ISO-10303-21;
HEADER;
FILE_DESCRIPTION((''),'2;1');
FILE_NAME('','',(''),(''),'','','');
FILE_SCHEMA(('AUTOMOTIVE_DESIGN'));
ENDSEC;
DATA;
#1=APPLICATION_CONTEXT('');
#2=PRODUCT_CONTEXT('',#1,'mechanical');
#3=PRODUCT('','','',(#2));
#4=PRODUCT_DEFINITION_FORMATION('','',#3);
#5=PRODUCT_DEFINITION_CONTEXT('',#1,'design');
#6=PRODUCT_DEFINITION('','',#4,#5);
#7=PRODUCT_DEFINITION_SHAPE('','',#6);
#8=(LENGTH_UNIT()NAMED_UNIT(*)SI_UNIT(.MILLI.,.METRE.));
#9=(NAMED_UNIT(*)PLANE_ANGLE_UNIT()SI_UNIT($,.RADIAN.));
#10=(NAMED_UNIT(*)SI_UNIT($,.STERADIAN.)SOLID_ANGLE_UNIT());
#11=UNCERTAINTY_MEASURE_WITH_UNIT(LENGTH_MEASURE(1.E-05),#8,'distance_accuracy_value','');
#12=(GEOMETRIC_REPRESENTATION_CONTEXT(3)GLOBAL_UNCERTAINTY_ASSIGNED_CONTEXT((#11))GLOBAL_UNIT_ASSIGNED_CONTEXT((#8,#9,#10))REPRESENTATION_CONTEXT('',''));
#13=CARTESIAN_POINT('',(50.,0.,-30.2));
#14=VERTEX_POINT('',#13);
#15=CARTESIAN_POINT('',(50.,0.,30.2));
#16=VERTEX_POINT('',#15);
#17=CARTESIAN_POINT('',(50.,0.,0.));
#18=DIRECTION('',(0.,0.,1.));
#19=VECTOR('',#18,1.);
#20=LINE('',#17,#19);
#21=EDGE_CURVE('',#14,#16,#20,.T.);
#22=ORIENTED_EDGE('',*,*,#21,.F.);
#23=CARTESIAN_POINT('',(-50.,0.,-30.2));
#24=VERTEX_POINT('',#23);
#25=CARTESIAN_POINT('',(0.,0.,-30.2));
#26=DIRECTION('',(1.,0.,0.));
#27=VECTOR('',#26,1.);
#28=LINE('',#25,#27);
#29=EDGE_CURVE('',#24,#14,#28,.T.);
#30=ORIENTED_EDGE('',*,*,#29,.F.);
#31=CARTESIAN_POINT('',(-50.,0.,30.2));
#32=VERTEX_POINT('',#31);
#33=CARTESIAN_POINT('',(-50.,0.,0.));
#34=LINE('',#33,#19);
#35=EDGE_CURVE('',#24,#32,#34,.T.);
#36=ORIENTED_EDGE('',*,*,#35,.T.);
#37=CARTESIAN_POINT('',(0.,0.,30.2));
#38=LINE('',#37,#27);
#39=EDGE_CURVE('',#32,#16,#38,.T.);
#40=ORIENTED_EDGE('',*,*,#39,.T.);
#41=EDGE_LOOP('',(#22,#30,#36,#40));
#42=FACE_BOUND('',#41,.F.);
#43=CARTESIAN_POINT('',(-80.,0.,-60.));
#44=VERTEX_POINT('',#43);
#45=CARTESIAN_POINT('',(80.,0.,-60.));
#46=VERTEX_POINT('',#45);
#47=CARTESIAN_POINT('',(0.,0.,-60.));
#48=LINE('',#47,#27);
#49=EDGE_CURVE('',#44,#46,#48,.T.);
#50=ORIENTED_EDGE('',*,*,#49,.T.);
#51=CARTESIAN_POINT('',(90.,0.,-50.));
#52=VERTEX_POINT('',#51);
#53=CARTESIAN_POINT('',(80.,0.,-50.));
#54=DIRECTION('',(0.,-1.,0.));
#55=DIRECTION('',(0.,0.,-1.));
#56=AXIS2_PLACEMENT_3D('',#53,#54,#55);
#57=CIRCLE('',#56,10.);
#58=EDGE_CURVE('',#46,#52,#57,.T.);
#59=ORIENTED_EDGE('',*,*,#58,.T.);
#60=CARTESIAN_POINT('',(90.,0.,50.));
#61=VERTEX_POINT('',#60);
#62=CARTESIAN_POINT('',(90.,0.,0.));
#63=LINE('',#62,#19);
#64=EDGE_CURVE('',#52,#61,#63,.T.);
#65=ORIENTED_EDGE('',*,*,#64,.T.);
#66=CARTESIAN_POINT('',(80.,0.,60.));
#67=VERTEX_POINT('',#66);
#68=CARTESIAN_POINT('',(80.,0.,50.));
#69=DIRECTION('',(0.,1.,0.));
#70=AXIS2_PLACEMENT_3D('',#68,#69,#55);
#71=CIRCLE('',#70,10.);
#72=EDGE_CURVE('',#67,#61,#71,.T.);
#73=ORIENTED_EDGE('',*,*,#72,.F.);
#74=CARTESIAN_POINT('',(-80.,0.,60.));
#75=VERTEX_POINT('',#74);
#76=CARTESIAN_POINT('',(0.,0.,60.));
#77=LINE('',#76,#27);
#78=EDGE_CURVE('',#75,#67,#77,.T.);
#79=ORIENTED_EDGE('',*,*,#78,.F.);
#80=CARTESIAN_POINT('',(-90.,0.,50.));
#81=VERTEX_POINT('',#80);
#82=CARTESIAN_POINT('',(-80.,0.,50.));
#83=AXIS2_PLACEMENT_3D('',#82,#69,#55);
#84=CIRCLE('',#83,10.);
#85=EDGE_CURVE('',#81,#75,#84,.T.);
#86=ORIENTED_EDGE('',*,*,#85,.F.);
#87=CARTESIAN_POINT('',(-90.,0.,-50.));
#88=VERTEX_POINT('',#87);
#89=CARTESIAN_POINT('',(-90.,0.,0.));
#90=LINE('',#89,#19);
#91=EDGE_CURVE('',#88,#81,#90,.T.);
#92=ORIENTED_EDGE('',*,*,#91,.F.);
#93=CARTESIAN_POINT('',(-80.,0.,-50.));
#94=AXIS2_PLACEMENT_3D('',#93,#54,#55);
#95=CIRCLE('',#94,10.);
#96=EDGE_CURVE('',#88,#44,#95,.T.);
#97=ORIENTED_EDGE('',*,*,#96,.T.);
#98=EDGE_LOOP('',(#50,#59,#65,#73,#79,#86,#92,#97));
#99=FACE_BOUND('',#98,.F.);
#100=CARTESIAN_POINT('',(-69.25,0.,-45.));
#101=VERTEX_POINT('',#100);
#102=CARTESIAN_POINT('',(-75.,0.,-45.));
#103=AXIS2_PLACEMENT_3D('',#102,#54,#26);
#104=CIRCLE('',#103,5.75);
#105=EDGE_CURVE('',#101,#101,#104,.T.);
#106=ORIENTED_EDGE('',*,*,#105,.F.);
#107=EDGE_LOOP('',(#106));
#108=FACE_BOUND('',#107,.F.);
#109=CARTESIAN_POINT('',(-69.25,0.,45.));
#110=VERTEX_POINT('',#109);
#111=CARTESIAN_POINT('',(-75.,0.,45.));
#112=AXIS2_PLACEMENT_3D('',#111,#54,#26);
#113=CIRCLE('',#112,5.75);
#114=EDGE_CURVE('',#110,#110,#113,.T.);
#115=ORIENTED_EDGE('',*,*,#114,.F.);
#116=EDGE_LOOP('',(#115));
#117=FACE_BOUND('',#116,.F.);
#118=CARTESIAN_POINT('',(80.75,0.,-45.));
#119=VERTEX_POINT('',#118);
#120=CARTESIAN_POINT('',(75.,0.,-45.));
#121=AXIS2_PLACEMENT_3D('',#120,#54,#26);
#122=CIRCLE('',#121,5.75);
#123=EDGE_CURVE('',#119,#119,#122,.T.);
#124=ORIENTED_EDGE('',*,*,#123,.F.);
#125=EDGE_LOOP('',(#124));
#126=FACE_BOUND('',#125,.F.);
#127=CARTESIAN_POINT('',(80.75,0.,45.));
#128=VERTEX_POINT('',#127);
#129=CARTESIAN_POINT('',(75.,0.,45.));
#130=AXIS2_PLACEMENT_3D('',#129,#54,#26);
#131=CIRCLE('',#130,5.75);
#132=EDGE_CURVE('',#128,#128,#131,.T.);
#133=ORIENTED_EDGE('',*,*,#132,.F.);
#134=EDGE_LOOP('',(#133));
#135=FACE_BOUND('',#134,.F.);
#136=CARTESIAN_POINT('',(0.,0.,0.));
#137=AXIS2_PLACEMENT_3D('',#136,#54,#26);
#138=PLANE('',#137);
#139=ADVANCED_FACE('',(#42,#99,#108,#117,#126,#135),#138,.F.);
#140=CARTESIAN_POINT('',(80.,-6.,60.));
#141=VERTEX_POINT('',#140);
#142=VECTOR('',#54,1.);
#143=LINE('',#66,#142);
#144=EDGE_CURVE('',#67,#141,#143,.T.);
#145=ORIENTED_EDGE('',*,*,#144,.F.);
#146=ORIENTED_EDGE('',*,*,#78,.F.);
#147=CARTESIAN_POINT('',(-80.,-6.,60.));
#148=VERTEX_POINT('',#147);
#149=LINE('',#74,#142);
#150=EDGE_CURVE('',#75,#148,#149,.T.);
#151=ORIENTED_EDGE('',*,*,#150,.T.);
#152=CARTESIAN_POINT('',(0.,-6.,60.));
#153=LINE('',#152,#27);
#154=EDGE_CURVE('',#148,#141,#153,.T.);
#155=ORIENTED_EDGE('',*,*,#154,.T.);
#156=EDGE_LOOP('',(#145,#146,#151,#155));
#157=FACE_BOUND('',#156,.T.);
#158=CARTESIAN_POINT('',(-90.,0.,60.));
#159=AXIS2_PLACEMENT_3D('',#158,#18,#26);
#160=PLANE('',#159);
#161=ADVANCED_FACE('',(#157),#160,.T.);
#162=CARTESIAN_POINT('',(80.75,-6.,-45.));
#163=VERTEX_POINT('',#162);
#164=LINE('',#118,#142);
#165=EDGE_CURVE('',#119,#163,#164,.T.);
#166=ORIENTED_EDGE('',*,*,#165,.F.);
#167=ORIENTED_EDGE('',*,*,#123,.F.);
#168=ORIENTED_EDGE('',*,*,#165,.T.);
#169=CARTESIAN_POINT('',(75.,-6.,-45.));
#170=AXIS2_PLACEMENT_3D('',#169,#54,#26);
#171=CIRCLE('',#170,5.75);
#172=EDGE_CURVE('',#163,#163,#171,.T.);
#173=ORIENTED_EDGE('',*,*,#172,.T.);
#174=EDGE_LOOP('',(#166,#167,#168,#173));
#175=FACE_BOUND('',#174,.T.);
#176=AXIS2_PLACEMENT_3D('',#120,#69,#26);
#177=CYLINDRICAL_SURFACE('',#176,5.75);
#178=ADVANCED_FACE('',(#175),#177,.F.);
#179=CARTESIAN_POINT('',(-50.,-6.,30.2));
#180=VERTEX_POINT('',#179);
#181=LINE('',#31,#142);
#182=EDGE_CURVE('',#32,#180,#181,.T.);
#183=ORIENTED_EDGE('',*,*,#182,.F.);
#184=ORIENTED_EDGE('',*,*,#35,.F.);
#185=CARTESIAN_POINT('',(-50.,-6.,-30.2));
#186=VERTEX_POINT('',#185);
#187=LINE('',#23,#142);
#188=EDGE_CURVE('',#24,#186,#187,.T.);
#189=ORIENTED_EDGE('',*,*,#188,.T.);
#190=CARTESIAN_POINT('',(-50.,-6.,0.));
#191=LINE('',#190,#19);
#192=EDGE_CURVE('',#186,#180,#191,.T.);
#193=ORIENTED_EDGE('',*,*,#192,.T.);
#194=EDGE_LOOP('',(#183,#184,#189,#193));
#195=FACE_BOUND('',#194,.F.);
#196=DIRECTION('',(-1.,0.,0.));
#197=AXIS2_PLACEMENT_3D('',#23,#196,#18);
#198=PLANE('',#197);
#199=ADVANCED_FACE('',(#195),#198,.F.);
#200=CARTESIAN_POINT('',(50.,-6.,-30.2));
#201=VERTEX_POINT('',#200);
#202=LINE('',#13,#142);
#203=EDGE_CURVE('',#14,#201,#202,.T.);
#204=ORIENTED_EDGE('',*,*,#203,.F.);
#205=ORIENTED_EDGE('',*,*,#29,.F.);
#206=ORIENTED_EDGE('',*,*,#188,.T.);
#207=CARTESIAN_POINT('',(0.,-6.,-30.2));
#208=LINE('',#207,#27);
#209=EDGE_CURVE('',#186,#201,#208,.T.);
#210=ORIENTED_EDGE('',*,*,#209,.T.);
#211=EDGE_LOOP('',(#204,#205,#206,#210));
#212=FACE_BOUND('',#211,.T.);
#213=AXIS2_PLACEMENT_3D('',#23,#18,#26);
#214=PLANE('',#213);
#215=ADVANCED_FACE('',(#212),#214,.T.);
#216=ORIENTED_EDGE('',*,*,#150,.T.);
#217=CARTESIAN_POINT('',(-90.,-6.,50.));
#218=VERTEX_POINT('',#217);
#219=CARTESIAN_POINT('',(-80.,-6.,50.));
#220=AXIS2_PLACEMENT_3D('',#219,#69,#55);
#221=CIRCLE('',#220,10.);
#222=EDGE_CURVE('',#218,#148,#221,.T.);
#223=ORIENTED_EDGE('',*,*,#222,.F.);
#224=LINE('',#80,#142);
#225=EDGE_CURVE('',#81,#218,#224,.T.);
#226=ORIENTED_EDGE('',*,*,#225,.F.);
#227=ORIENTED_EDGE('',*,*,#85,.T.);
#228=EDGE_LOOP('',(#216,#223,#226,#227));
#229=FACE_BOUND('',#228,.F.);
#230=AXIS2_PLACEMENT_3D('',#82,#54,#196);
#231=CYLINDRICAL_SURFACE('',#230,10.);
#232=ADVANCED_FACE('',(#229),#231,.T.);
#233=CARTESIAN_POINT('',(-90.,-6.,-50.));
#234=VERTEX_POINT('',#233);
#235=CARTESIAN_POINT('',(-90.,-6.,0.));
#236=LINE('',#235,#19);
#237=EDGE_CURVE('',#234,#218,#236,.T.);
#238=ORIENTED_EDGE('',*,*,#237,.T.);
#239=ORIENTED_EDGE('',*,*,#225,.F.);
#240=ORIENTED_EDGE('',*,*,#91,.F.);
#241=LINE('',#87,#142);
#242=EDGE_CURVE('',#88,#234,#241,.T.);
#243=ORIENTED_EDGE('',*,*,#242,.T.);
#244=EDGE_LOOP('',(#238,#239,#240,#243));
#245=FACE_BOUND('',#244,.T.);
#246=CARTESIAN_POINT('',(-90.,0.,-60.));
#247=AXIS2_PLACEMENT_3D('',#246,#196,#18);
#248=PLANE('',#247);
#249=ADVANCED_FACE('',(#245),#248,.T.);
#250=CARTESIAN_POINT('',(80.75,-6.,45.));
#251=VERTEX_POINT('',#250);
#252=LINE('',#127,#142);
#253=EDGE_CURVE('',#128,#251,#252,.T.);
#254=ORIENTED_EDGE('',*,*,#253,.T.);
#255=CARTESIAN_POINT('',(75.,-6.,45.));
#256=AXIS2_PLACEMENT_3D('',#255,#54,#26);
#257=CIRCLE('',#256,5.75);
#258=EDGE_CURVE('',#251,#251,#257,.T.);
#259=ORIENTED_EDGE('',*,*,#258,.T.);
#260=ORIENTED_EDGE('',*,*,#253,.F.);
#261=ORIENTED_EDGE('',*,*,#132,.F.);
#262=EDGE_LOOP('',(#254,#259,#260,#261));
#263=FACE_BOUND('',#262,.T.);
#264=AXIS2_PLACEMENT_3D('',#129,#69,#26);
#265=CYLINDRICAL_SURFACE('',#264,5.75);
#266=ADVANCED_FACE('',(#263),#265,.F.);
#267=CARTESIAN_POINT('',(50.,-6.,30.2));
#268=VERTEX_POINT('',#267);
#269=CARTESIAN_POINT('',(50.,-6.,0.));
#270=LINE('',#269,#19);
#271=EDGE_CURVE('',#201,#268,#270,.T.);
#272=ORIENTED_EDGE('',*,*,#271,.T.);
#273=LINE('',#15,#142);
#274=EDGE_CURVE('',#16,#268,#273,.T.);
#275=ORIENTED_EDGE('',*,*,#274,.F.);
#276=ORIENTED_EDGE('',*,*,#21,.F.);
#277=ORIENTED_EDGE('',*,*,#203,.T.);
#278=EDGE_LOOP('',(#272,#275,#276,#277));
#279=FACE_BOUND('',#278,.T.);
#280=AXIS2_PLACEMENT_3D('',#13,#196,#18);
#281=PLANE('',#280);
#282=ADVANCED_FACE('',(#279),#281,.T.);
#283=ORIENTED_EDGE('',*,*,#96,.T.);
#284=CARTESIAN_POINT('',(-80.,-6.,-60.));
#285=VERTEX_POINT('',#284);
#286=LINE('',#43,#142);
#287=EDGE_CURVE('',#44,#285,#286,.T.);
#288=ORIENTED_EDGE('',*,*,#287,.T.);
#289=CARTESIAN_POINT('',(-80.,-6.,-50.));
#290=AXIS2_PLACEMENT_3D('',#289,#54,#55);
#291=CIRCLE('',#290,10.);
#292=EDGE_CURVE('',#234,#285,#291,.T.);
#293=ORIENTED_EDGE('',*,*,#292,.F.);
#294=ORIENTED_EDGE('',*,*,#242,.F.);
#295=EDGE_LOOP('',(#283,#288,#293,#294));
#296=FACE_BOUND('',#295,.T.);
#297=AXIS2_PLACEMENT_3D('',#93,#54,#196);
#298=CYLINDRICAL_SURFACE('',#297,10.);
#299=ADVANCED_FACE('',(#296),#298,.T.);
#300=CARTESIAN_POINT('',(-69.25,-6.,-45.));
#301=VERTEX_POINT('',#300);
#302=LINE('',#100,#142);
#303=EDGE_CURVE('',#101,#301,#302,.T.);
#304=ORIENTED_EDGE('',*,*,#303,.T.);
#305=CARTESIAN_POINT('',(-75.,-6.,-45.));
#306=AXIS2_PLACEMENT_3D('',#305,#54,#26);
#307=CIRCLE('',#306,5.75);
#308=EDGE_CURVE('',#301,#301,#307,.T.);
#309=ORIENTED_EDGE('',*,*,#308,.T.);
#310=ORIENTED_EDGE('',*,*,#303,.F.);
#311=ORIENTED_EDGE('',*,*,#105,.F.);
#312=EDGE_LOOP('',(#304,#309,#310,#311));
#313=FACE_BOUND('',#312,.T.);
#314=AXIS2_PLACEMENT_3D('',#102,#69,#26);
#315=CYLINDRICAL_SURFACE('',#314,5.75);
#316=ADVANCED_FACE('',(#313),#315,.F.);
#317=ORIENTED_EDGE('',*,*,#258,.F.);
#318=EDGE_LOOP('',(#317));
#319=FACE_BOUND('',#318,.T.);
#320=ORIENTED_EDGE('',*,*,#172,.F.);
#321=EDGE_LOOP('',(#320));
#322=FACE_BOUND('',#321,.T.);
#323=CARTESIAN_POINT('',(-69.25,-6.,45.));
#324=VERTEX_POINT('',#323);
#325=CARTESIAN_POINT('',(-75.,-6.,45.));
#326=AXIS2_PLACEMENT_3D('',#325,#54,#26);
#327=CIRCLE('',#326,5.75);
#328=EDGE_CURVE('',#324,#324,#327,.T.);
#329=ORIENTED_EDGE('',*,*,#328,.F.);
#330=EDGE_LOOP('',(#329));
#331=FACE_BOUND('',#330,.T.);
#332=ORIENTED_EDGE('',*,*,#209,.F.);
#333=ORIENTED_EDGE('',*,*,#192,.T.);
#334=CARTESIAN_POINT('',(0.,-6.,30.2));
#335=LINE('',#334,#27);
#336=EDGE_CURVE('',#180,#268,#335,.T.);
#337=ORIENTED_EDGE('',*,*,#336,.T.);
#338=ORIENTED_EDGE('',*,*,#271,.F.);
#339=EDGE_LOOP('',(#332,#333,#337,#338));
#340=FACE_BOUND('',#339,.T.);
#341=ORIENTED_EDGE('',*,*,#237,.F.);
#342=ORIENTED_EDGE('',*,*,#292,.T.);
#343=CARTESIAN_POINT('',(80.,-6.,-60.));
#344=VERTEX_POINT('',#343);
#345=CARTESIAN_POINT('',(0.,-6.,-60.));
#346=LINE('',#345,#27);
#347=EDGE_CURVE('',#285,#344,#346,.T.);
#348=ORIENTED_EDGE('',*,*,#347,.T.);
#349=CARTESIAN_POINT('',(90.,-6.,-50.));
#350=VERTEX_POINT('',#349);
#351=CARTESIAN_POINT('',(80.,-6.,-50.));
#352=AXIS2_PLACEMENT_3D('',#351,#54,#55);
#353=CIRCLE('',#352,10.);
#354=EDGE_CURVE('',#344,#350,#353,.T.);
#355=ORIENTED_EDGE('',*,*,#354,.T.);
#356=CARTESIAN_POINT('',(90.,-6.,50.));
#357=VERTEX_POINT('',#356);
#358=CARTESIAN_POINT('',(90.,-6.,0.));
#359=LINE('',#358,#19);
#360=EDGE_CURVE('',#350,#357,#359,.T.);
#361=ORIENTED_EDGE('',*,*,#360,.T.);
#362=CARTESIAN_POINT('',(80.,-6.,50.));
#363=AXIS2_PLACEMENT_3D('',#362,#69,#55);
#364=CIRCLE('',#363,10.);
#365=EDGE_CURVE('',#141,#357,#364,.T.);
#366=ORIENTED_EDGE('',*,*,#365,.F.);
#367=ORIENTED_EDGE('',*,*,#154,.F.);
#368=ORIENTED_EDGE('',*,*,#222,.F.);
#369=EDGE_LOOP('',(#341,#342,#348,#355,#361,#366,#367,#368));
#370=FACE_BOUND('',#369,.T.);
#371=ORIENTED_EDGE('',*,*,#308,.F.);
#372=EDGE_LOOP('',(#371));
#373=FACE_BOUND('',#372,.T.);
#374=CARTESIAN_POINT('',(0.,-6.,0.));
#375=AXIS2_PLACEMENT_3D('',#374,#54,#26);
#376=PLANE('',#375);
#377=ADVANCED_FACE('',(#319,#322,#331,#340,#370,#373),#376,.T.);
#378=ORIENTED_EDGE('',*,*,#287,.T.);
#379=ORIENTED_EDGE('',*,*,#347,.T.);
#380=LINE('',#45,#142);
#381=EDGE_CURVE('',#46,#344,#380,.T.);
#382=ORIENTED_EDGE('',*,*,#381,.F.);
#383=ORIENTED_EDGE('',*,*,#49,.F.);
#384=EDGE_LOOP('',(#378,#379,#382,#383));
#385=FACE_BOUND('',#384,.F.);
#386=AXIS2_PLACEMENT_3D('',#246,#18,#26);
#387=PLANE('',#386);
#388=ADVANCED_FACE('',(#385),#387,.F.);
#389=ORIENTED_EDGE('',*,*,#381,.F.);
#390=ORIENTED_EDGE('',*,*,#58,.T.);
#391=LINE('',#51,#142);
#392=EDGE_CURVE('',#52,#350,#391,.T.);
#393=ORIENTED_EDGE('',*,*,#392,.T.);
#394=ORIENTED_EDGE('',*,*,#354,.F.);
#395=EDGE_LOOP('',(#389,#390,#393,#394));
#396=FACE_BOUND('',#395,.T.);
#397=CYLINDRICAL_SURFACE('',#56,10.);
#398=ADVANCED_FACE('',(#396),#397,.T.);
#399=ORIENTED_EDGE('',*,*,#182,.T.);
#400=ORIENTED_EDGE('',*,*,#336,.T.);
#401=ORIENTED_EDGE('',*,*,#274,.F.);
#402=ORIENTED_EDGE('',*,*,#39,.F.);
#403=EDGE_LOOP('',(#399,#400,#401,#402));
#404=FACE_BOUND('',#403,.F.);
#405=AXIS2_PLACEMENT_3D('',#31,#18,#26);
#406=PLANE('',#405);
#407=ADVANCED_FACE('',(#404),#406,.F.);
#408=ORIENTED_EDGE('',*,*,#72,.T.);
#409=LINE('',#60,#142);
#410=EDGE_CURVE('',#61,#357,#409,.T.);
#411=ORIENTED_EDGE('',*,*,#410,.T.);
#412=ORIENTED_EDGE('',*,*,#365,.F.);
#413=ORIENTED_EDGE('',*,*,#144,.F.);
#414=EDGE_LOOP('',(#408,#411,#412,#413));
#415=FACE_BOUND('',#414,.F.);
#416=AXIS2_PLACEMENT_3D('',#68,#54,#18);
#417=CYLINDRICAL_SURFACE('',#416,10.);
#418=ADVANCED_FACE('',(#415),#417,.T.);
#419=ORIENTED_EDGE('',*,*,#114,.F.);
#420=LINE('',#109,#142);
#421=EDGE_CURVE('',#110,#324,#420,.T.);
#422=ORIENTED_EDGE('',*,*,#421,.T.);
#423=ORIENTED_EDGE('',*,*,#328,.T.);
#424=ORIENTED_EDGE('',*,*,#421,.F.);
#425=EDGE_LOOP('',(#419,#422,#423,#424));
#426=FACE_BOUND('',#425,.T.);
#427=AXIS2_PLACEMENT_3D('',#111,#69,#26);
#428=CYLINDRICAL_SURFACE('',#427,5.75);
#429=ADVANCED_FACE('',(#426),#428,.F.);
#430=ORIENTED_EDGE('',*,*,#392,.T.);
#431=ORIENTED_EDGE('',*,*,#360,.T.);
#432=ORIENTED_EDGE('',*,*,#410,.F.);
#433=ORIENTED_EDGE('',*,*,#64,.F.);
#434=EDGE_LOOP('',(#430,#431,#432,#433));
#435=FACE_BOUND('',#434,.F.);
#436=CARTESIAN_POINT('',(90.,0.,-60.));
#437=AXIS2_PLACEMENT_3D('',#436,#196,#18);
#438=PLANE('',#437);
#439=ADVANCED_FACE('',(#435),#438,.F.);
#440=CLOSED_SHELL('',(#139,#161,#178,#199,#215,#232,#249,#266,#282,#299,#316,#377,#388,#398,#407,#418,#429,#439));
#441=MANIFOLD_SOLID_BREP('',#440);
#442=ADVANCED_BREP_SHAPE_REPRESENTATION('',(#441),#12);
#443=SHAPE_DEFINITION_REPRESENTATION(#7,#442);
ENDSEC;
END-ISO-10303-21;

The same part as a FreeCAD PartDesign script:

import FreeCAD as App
import Part
import Sketcher

V = App.Vector


def edges_at(feature, points):
    """Names of the edges that pass closest to the given points."""
    edges = feature.Shape.Edges
    near = lambda p: min(range(len(edges)), key=lambda i: edges[i].distToShape(Part.Vertex(*p))[0])
    return sorted({f"Edge{near(p) + 1}" for p in points})

doc = App.newDocument("Part")
body = doc.addObject("PartDesign::Body", "Body")

# Sketch on XZ plane
sketch1 = body.newObject("Sketcher::SketchObject", "Sketch")
sketch1.AttachmentSupport = (doc.getObject("XZ_Plane"), [""])
sketch1.MapMode = "FlatFace"
sketch1.addGeometry(Part.LineSegment(V(-90, 60, 0), V(-90, -60, 0)), False)
sketch1.addGeometry(Part.LineSegment(V(-90, -60, 0), V(90, -60, 0)), False)
sketch1.addGeometry(Part.LineSegment(V(90, -60, 0), V(90, 60, 0)), False)
sketch1.addGeometry(Part.LineSegment(V(90, 60, 0), V(-90, 60, 0)), False)
sketch1.addGeometry(Part.Circle(V(-75, -45, 0), V(0, 0, 1), 5.75), False)
sketch1.addGeometry(Part.Circle(V(75, -45, 0), V(0, 0, 1), 5.75), False)
sketch1.addGeometry(Part.Circle(V(-75, 45, 0), V(0, 0, 1), 5.75), False)
sketch1.addGeometry(Part.LineSegment(V(50, -30.2, 0), V(-50, -30.2, 0)), False)
sketch1.addGeometry(Part.LineSegment(V(-50, -30.2, 0), V(-50, 30.2, 0)), False)
sketch1.addGeometry(Part.LineSegment(V(-50, 30.2, 0), V(50, 30.2, 0)), False)
sketch1.addGeometry(Part.LineSegment(V(50, 30.2, 0), V(50, -30.2, 0)), False)
sketch1.addGeometry(Part.Circle(V(75, 45, 0), V(0, 0, 1), 5.75), False)
sketch1.addConstraint(Sketcher.Constraint("Coincident", 0, 2, 1, 1))
sketch1.addConstraint(Sketcher.Constraint("Coincident", 1, 2, 2, 1))
sketch1.addConstraint(Sketcher.Constraint("Coincident", 2, 2, 3, 1))
sketch1.addConstraint(Sketcher.Constraint("Coincident", 3, 2, 0, 1))
sketch1.addConstraint(Sketcher.Constraint("Coincident", 7, 2, 8, 1))
sketch1.addConstraint(Sketcher.Constraint("Coincident", 8, 2, 9, 1))
sketch1.addConstraint(Sketcher.Constraint("Coincident", 9, 2, 10, 1))
sketch1.addConstraint(Sketcher.Constraint("Coincident", 10, 2, 7, 1))
sketch1.addConstraint(Sketcher.Constraint("Vertical", 0))
sketch1.addConstraint(Sketcher.Constraint("Horizontal", 1))
sketch1.addConstraint(Sketcher.Constraint("Vertical", 2))
sketch1.addConstraint(Sketcher.Constraint("Horizontal", 3))
sketch1.addConstraint(Sketcher.Constraint("Horizontal", 7))
sketch1.addConstraint(Sketcher.Constraint("Vertical", 8))
sketch1.addConstraint(Sketcher.Constraint("Horizontal", 9))
sketch1.addConstraint(Sketcher.Constraint("Vertical", 10))
sketch1.addConstraint(Sketcher.Constraint("Equal", 4, 5))
sketch1.addConstraint(Sketcher.Constraint("Equal", 5, 6))
sketch1.addConstraint(Sketcher.Constraint("Equal", 6, 11))
sketch1.addConstraint(Sketcher.Constraint("Symmetric", 5, 3, 6, 3, -1, 1))
sketch1.addConstraint(Sketcher.Constraint("Symmetric", 4, 3, 11, 3, -1, 1))
sketch1.addConstraint(Sketcher.Constraint("Symmetric", 0, 2, 2, 2, -1, 1))
sketch1.addConstraint(Sketcher.Constraint("Symmetric", 7, 2, 9, 2, -1, 1))
sketch1.addConstraint(Sketcher.Constraint("Symmetric", 4, 3, 5, 3, -2))
sketch1.addConstraint(Sketcher.Constraint("Diameter", 4, 11.5))
sketch1.addConstraint(Sketcher.Constraint("DistanceX", 1, 1, 1, 2, 180.0))
sketch1.addConstraint(Sketcher.Constraint("DistanceX", 7, 2, 7, 1, 100.0))
sketch1.addConstraint(Sketcher.Constraint("DistanceY", 0, 2, 0, 1, 120.0))
sketch1.addConstraint(Sketcher.Constraint("DistanceY", 8, 1, 8, 2, 60.4))
sketch1.addConstraint(Sketcher.Constraint("DistanceX", 4, 3, -1, 1, 75.0))
sketch1.addConstraint(Sketcher.Constraint("DistanceY", 4, 3, -1, 1, 45.0))
pad1 = body.newObject("PartDesign::Pad", "Pad")
pad1.Profile = sketch1
pad1.Length = 6
doc.recompute()

fillet = body.newObject("PartDesign::Fillet", "Fillet")
fillet.Base = (pad1, edges_at(pad1, [
    (-90, -3, 60),
    (90, -3, 60),
    (90, -3, -60),
    (-90, -3, -60),
]))
fillet.Radius = 10

doc.recompute()
